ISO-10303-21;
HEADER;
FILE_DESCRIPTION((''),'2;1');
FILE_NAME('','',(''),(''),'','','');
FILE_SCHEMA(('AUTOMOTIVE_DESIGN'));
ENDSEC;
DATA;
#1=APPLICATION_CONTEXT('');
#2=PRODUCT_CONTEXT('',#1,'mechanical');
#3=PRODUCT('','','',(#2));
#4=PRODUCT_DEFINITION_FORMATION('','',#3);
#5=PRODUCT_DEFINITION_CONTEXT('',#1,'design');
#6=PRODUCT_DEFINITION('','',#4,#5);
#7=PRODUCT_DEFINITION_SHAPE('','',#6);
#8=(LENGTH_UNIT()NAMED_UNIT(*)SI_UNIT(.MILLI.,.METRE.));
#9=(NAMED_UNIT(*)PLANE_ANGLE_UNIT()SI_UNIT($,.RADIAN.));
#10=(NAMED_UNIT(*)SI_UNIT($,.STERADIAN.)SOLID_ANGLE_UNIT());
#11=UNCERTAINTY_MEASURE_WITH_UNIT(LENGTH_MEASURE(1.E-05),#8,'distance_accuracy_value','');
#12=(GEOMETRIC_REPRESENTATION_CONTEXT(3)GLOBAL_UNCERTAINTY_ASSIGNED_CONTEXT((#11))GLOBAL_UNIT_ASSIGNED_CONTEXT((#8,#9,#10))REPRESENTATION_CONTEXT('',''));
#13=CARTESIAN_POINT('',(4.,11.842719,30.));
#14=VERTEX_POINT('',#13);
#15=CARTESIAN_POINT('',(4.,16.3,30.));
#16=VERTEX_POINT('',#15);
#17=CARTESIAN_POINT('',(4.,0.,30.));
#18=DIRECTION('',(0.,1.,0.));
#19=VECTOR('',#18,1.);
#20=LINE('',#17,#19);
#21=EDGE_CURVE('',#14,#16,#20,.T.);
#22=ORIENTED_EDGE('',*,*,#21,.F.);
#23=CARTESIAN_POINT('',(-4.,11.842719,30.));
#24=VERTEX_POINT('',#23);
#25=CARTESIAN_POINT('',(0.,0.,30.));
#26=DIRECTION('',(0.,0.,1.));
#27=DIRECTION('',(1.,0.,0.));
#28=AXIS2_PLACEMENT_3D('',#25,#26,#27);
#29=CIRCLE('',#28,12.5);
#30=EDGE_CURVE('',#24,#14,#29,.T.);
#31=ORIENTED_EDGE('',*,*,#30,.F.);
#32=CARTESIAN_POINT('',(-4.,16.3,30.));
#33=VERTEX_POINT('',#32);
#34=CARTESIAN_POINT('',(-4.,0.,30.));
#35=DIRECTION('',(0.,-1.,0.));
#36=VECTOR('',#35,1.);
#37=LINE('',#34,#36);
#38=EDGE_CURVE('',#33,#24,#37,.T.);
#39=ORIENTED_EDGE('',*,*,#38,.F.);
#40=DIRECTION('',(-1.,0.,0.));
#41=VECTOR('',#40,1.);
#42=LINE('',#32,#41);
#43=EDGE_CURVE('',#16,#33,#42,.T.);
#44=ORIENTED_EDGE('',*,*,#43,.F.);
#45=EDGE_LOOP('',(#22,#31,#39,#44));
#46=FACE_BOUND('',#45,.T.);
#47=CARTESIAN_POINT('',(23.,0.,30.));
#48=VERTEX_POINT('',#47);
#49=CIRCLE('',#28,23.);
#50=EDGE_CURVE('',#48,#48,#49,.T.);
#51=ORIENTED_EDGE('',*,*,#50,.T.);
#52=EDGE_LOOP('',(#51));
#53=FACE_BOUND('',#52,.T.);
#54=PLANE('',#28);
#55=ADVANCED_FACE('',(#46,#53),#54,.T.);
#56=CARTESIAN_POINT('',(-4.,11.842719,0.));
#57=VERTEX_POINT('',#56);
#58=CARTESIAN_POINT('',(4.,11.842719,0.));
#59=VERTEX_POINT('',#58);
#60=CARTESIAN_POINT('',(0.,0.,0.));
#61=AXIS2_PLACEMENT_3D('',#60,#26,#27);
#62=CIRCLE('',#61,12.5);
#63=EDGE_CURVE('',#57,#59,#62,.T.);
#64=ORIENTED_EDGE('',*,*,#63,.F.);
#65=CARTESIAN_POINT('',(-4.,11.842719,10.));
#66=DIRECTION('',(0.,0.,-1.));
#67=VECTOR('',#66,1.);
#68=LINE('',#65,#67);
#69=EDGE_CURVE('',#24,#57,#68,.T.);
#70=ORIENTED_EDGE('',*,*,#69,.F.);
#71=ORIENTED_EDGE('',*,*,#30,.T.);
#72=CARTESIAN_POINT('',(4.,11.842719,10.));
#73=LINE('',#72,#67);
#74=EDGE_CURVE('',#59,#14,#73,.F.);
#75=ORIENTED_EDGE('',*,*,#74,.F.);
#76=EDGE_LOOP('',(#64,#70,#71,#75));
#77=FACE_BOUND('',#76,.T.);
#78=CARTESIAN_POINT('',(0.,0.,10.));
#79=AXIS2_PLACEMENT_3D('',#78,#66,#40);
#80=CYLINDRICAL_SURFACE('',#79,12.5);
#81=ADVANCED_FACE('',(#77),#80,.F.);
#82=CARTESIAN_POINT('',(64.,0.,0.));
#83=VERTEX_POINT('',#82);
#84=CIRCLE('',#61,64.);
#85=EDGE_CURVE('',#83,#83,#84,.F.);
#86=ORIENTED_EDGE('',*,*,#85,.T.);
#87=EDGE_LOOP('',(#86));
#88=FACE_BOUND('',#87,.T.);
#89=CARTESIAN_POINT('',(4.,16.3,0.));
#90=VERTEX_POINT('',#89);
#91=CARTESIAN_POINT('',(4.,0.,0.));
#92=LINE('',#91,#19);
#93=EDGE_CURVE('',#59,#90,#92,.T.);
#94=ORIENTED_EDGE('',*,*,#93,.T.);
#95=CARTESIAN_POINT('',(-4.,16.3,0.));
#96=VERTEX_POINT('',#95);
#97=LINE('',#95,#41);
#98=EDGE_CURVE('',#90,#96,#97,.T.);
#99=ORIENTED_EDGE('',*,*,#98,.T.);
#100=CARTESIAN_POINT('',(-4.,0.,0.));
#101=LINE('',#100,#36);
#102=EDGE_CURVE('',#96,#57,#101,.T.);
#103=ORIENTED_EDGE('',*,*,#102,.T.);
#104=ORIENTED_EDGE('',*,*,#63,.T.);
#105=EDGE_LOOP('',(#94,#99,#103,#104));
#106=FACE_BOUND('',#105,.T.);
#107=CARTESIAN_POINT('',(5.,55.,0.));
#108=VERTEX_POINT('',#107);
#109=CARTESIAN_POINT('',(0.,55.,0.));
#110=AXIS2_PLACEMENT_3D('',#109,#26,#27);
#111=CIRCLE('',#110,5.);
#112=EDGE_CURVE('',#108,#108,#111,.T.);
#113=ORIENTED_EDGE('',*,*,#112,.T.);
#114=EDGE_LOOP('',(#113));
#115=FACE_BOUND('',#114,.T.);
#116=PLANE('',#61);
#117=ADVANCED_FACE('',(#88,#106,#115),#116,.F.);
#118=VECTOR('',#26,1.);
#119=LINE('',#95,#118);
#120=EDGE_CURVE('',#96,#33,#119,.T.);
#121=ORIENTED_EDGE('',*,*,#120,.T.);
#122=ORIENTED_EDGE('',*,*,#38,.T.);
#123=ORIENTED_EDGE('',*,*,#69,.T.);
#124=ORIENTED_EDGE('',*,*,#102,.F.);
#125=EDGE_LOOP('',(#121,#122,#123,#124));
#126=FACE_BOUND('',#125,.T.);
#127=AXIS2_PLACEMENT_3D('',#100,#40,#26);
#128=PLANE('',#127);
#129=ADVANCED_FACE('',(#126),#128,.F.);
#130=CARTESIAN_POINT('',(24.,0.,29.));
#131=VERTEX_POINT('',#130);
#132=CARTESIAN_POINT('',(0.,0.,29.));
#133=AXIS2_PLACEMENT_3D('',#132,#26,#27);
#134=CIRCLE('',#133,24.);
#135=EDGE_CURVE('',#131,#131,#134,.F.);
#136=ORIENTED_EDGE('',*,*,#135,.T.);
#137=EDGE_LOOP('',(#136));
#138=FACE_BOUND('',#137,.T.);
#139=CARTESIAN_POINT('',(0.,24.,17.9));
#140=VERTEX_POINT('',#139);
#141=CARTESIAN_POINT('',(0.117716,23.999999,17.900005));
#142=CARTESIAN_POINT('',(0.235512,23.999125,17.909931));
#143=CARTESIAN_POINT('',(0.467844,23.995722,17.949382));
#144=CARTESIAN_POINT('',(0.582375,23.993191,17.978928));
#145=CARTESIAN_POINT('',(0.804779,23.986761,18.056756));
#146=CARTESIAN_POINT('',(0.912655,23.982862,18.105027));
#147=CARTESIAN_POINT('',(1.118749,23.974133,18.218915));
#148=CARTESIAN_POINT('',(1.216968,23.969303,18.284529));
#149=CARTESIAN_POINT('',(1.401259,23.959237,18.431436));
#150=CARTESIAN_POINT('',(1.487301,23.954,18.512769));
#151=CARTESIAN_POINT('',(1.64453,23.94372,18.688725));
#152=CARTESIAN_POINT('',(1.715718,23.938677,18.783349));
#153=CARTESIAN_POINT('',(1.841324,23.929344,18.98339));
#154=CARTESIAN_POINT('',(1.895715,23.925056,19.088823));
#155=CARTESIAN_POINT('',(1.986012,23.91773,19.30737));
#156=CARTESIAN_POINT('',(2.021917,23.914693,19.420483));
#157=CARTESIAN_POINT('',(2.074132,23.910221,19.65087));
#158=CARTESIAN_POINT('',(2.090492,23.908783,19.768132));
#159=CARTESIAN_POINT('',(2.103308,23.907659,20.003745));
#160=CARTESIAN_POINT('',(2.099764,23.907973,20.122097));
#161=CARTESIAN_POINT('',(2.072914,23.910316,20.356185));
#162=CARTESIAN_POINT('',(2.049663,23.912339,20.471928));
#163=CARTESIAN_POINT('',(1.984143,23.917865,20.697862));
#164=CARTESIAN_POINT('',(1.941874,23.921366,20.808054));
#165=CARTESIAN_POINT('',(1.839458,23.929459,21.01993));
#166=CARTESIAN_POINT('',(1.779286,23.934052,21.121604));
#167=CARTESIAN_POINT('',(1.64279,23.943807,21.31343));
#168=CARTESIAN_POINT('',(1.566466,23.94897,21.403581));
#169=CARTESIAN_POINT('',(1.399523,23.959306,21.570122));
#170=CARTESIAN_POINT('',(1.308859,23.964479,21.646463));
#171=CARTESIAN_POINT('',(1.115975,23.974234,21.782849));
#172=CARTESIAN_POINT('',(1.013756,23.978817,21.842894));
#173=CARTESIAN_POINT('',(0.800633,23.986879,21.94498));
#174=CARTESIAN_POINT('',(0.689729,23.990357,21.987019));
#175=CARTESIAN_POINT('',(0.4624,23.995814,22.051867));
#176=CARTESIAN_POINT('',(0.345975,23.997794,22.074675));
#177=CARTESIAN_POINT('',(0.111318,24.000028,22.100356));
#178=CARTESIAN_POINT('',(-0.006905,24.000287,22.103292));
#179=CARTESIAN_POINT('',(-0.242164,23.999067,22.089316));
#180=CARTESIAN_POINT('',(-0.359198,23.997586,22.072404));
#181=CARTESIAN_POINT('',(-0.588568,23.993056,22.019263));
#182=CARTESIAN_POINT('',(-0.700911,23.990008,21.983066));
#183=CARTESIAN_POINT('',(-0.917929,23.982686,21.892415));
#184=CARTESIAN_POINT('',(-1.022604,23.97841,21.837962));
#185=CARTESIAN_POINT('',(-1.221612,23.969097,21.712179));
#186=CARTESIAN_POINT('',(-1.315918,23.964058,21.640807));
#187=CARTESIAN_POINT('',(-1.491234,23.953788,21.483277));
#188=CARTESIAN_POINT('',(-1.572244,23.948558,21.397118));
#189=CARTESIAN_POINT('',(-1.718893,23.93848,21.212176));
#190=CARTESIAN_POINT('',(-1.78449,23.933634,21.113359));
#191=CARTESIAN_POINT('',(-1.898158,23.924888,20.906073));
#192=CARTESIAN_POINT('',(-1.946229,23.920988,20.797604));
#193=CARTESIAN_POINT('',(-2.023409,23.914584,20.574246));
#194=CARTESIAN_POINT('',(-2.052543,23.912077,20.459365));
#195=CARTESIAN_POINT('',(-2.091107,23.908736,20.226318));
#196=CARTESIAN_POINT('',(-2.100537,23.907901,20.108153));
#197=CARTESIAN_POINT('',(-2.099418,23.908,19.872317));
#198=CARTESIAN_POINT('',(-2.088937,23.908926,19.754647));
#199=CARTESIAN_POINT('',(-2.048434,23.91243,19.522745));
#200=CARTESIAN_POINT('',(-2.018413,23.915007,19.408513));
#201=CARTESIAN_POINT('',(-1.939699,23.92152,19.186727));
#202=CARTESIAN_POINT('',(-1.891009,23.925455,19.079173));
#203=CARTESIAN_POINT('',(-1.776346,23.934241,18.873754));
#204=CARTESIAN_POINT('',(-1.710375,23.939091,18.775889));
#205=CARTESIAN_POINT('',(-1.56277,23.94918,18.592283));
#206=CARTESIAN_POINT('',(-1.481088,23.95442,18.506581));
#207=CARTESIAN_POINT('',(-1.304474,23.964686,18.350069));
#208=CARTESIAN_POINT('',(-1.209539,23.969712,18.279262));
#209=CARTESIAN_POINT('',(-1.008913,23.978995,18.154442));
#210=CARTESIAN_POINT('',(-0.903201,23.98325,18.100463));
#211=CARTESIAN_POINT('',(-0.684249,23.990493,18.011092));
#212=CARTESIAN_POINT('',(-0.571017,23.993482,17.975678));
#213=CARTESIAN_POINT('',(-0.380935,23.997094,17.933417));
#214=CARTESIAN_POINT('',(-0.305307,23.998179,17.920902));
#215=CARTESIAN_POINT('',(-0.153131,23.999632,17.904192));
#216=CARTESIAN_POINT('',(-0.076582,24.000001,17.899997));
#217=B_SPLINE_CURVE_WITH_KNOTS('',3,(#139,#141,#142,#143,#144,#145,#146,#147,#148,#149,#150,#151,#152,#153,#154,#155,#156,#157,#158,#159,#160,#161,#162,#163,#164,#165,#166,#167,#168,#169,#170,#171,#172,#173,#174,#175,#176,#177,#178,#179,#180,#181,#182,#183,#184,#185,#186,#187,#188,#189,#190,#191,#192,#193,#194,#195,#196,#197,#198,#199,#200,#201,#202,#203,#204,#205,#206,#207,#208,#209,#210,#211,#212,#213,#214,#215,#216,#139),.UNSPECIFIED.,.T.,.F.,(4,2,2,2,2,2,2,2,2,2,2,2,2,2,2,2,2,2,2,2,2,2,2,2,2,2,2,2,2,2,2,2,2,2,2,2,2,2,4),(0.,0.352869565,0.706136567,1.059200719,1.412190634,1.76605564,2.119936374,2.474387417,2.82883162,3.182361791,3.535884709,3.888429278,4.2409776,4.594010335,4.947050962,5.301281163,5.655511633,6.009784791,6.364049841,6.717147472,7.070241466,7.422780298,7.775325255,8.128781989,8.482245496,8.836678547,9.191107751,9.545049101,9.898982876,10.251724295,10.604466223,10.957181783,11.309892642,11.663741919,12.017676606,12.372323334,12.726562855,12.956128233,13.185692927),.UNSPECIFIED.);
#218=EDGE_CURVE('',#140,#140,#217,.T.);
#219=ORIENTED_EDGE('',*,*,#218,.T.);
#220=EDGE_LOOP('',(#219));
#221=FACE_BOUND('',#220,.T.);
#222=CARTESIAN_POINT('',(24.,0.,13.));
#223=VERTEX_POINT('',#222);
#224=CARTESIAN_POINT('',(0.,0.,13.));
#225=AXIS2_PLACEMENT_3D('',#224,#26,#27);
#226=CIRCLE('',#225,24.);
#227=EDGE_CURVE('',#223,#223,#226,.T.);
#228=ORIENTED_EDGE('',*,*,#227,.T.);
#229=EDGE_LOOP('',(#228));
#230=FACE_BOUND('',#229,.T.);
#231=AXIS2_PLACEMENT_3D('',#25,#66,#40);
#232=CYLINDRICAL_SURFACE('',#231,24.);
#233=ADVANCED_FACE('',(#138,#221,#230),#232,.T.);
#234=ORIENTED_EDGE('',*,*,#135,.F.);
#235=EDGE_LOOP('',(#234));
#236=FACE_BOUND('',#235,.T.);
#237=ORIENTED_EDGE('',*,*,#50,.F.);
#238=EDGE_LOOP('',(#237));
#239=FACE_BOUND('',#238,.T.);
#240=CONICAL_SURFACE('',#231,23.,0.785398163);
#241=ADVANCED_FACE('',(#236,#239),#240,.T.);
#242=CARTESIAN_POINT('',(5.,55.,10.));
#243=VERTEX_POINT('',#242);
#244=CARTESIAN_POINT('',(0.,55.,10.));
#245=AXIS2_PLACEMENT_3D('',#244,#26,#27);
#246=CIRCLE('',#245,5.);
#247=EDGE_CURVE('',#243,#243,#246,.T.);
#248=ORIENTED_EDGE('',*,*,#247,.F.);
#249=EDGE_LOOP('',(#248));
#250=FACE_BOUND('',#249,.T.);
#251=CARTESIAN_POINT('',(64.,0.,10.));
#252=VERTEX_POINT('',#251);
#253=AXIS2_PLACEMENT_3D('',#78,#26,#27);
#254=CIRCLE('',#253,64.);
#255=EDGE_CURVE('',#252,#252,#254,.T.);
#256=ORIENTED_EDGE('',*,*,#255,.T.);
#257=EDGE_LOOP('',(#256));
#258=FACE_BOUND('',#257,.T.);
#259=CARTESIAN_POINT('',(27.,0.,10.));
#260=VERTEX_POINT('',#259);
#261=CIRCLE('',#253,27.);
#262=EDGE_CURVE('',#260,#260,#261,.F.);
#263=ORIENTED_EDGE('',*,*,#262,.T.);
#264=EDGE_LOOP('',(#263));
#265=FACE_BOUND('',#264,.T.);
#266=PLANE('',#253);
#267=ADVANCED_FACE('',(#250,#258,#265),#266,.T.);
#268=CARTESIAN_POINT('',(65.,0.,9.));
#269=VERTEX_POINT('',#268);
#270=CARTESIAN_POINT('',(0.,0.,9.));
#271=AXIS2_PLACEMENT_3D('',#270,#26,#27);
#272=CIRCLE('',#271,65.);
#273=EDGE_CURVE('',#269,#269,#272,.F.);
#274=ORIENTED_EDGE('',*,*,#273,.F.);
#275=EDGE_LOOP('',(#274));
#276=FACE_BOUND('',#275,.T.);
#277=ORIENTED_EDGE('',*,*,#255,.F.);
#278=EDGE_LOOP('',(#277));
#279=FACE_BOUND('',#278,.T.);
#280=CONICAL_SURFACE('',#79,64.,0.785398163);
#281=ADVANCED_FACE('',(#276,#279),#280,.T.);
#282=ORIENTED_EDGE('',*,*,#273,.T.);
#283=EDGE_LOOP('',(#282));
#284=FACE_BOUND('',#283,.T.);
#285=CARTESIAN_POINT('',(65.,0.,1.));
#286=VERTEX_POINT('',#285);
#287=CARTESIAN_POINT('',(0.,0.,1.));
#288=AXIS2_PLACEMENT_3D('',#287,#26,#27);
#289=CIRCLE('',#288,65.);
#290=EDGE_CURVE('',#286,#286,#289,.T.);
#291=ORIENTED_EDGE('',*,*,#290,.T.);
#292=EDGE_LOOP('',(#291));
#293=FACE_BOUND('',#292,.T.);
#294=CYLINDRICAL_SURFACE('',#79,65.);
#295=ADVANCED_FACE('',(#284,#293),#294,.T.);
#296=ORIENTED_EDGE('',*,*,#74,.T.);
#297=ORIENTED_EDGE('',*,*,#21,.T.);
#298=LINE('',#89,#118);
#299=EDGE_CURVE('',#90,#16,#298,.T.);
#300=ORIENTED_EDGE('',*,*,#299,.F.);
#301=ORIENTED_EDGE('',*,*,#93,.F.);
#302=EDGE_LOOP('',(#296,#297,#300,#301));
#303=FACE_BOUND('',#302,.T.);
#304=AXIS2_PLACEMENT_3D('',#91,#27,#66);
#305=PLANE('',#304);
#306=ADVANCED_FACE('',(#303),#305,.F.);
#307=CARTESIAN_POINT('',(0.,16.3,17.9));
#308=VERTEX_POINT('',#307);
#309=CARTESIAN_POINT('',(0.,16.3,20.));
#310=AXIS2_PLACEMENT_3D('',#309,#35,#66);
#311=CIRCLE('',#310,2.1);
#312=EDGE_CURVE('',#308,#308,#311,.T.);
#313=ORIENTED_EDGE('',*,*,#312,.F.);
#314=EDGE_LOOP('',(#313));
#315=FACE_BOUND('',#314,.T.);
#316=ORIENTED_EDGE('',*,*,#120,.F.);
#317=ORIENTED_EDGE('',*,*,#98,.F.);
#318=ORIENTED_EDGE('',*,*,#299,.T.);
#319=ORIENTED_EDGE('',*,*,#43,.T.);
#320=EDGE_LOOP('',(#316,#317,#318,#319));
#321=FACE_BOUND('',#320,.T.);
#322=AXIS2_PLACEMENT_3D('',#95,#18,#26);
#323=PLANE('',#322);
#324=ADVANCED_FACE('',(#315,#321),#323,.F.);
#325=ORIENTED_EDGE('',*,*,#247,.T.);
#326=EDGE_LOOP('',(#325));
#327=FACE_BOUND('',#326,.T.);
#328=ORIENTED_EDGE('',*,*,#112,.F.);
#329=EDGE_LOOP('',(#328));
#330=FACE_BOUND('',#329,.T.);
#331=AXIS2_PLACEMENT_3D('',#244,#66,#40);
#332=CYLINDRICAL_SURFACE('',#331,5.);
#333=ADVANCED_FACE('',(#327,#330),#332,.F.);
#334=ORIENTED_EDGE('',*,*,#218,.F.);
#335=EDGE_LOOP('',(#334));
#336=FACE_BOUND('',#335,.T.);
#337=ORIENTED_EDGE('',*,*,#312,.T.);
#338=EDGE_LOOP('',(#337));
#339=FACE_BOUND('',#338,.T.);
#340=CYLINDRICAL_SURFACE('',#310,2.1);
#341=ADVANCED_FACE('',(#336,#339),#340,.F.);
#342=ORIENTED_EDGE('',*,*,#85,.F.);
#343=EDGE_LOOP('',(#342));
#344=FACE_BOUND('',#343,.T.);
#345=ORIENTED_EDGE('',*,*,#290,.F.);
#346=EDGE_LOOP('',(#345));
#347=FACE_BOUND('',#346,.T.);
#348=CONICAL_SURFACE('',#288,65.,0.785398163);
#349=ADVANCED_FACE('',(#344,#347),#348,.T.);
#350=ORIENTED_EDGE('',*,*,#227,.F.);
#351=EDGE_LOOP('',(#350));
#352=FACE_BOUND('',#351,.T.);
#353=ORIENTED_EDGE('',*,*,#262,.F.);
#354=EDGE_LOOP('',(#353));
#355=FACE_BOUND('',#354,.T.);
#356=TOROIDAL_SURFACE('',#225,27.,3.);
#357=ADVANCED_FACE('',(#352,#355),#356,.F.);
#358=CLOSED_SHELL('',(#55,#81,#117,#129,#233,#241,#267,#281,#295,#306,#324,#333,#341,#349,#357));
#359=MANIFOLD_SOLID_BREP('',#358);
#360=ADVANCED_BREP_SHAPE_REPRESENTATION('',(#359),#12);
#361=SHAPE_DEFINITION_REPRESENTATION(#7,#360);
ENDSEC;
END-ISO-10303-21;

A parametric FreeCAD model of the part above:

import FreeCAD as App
import Part
import Sketcher

V = App.Vector
Q = App.Units.Quantity


def edges_at(feature, points):
    """Names of the edges that pass closest to the given points."""
    edges = feature.Shape.Edges
    near = lambda p: min(range(len(edges)), key=lambda i: edges[i].distToShape(Part.Vertex(*p))[0])
    return sorted({f"Edge{near(p) + 1}" for p in points})

doc = App.newDocument("Part")
body = doc.addObject("PartDesign::Body", "Body")

# Sketch on XY plane
sketch1 = body.newObject("Sketcher::SketchObject", "Sketch")
sketch1.AttachmentSupport = (doc.getObject("XY_Plane"), [""])
sketch1.MapMode = "FlatFace"
sketch1.addGeometry(Part.Circle(V(0, 0, 0), V(0, 0, 1), 65), False)
sketch1.addGeometry(Part.Circle(V(0, 0, 0), V(0, 0, 1), 12), False)
sketch1.addGeometry(Part.Circle(V(0, 55, 0), V(0, 0, 1), 5), False)
sketch1.addConstraint(Sketcher.Constraint("Coincident", 0, 3, -1, 1))
sketch1.addConstraint(Sketcher.Constraint("Coincident", 1, 3, -1, 1))
sketch1.addConstraint(Sketcher.Constraint("PointOnObject", 2, 3, -2))
sketch1.addConstraint(Sketcher.Constraint("Diameter", 0, Q("130 mm")))
sketch1.addConstraint(Sketcher.Constraint("Diameter", 1, Q("25 mm")))
sketch1.addConstraint(Sketcher.Constraint("Diameter", 2, Q("10 mm")))
sketch1.addConstraint(Sketcher.Constraint("DistanceY", -1, 1, 2, 3, Q("55 mm")))
pad1 = body.newObject("PartDesign::Pad", "Pad")
pad1.Profile = sketch1
pad1.Length = 10

# Sketch on XY plane
sketch2 = body.newObject("Sketcher::SketchObject", "Sketch001")
sketch2.AttachmentSupport = (doc.getObject("XY_Plane"), [""])
sketch2.MapMode = "FlatFace"
sketch2.AttachmentOffset = App.Placement(V(0, 0, 10), App.Rotation())
sketch2.addGeometry(Part.Circle(V(0, 0, 0), V(0, 0, 1), 24), False)
sketch2.addGeometry(Part.Circle(V(0, 0, 0), V(0, 0, 1), 12), False)
sketch2.addConstraint(Sketcher.Constraint("Coincident", 0, 3, -1, 1))
sketch2.addConstraint(Sketcher.Constraint("Coincident", 1, 3, -1, 1))
sketch2.addConstraint(Sketcher.Constraint("Diameter", 0, Q("48 mm")))
sketch2.addConstraint(Sketcher.Constraint("Diameter", 1, Q("25 mm")))
pad2 = body.newObject("PartDesign::Pad", "Pad001")
pad2.Profile = sketch2
pad2.Length = 20
doc.recompute()

chamfer = body.newObject("PartDesign::Chamfer", "Chamfer")
chamfer.Base = (pad2, edges_at(pad2, [(-65, 0, 0), (-65, 0, 10)]))
chamfer.Size = 1
doc.recompute()

fillet = body.newObject("PartDesign::Fillet", "Fillet")
fillet.Base = (chamfer, edges_at(chamfer, [(-24, 0, 10)]))
fillet.Radius = 3
doc.recompute()

chamfer2 = body.newObject("PartDesign::Chamfer", "Chamfer001")
chamfer2.Base = (fillet, edges_at(fillet, [(-24, 0, 30)]))
chamfer2.Size = 1

# Sketch on XY plane
sketch3 = body.newObject("Sketcher::SketchObject", "Sketch002")
sketch3.AttachmentSupport = (doc.getObject("XY_Plane"), [""])
sketch3.MapMode = "FlatFace"
sketch3.AttachmentOffset = App.Placement(V(0, 0, 30), App.Rotation())
sketch3.addGeometry(Part.LineSegment(V(-4, 16, 0), V(-4, 0, 0)), False)
sketch3.addGeometry(Part.LineSegment(V(-4, 0, 0), V(4, 0, 0)), False)
sketch3.addGeometry(Part.LineSegment(V(4, 0, 0), V(4, 16, 0)), False)
sketch3.addGeometry(Part.LineSegment(V(4, 16, 0), V(-4, 16, 0)), False)
sketch3.addConstraint(Sketcher.Constraint("Coincident", 0, 2, 1, 1))
sketch3.addConstraint(Sketcher.Constraint("Coincident", 1, 2, 2, 1))
sketch3.addConstraint(Sketcher.Constraint("Coincident", 2, 2, 3, 1))
sketch3.addConstraint(Sketcher.Constraint("Coincident", 3, 2, 0, 1))
sketch3.addConstraint(Sketcher.Constraint("Vertical", 0))
sketch3.addConstraint(Sketcher.Constraint("Horizontal", 1))
sketch3.addConstraint(Sketcher.Constraint("Vertical", 2))
sketch3.addConstraint(Sketcher.Constraint("Horizontal", 3))
sketch3.addConstraint(Sketcher.Constraint("Symmetric", 0, 2, 1, 2, -1, 1))
sketch3.addConstraint(Sketcher.Constraint("DistanceX", 1, 1, 1, 2, Q("8 mm")))
sketch3.addConstraint(Sketcher.Constraint("DistanceY", 0, 2, 0, 1, Q("16.3 mm")))
pocket1 = body.newObject("PartDesign::Pocket", "Pocket")
pocket1.Profile = sketch3
pocket1.Type = "ThroughAll"

# Sketch on XZ plane
sketch4 = body.newObject("Sketcher::SketchObject", "Sketch003")
sketch4.AttachmentSupport = (doc.getObject("XZ_Plane"), [""])
sketch4.MapMode = "FlatFace"
sketch4.AttachmentOffset = App.Placement(V(0, 0, -16.3), App.Rotation())
sketch4.addGeometry(Part.Circle(V(0, 20, 0), V(0, 0, 1), 2.1), False)
sketch4.addConstraint(Sketcher.Constraint("PointOnObject", 0, 3, -2))
sketch4.addConstraint(Sketcher.Constraint("Diameter", 0, Q("4.2 mm")))
sketch4.addConstraint(Sketcher.Constraint("DistanceY", -1, 1, 0, 3, Q("20 mm")))
doc.recompute()
hole = body.newObject("PartDesign::Hole", "Hole")
hole.Profile = sketch4
hole.ThreadType = "None"
hole.Diameter = 4.2
hole.DepthType = "Dimension"
hole.Depth = 12.4
hole.DrillPoint = "Angled"
hole.DrillPointAngle = 118

doc.recompute()
